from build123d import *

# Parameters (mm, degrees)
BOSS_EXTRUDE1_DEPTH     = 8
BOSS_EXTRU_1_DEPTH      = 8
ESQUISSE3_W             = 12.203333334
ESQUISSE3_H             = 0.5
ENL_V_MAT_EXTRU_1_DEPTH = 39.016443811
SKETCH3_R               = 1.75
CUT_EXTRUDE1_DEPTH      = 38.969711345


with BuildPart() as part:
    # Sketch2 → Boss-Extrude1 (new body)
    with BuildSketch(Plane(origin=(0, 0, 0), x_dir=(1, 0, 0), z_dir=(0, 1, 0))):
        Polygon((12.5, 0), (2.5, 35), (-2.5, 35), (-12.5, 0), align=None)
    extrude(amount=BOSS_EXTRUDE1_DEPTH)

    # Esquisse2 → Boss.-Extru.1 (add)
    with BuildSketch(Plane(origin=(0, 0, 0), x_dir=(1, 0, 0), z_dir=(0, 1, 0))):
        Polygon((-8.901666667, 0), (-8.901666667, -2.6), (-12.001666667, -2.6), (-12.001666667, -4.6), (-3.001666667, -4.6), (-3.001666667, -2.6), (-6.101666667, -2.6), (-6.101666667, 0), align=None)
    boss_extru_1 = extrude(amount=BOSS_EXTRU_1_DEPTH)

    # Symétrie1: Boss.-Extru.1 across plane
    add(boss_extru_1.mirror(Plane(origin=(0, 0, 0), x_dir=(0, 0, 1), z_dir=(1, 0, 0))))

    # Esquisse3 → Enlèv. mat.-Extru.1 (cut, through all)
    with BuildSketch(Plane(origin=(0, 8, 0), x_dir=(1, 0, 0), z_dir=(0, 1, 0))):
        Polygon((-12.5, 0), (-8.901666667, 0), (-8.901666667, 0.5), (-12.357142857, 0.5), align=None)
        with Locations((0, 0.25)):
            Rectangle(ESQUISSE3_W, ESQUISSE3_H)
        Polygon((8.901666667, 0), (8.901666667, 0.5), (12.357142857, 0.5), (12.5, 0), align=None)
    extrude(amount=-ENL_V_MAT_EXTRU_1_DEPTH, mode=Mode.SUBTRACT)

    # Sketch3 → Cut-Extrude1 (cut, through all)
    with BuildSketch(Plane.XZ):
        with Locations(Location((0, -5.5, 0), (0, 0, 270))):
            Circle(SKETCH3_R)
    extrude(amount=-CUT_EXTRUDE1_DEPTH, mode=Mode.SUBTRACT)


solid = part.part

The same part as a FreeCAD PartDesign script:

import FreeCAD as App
import Part
import Sketcher

V = App.Vector

doc = App.newDocument("Part")
body = doc.addObject("PartDesign::Body", "Body")

# Sketch on XZ plane
sketch1 = doc.addObject("Sketcher::SketchObject", "Sketch")
body.addObject(sketch1)
sketch1.AttachmentSupport = (doc.XZ_Plane, [""])
sketch1.MapMode = "FlatFace"
sketch1.addGeometry([
    Part.LineSegment(V(12, 0, 0), V(2, -35, 0)),
    Part.LineSegment(V(2, -35, 0), V(-2, -35, 0)),
    Part.LineSegment(V(-2, -35, 0), V(-12, 0, 0)),
    Part.LineSegment(V(-12, 0, 0), V(12, 0, 0)),
], False)
sketch1.addConstraint([
    Sketcher.Constraint("Coincident", 0, 2, 1, 1),
    Sketcher.Constraint("Coincident", 1, 2, 2, 1),
    Sketcher.Constraint("Coincident", 2, 2, 3, 1),
    Sketcher.Constraint("Coincident", 3, 2, 0, 1),
    Sketcher.Constraint("Horizontal", 1),
    Sketcher.Constraint("Horizontal", 3),
    Sketcher.Constraint("Symmetric", 2, 2, 3, 2, -1, 1),
    Sketcher.Constraint("Equal", 0, 2),
    Sketcher.Constraint("DistanceX", 1, 2, 1, 1, 5.0),
    Sketcher.Constraint("DistanceX", 3, 1, 3, 2, 25.0),
    Sketcher.Constraint("DistanceY", 0, 2, -1, 1, 35.0),
])
pad1 = doc.addObject("PartDesign::Pad", "Pad")
body.addObject(pad1)
pad1.Profile = sketch1
pad1.Length = 8
pad1.Reversed = True

# Sketch on XZ plane
sketch2 = doc.addObject("Sketcher::SketchObject", "Sketch001")
body.addObject(sketch2)
sketch2.AttachmentSupport = (doc.XZ_Plane, [""])
sketch2.MapMode = "FlatFace"
sketch2.addGeometry([
    Part.LineSegment(V(-8.9, 0, 0), V(-8.9, 2.6, 0)),  # 0
    Part.LineSegment(V(-8.9, 2.6, 0), V(-12, 2.6, 0)),  # 1
    Part.LineSegment(V(-12, 2.6, 0), V(-12, 4.6, 0)),  # 2
    Part.LineSegment(V(-12, 4.6, 0), V(-3, 4.6, 0)),  # 3
    Part.LineSegment(V(-3, 4.6, 0), V(-3, 2.6, 0)),  # 4
    Part.LineSegment(V(-3, 2.6, 0), V(-6.1, 2.6, 0)),  # 5
    Part.LineSegment(V(-6.1, 2.6, 0), V(-6.1, 0, 0)),  # 6
    Part.LineSegment(V(-6.1, 0, 0), V(-8.9, 0, 0)),  # 7
], False)
sketch2.addConstraint([
    Sketcher.Constraint("Coincident", 0, 2, 1, 1),
    Sketcher.Constraint("Coincident", 1, 2, 2, 1),
    Sketcher.Constraint("Coincident", 2, 2, 3, 1),
    Sketcher.Constraint("Coincident", 3, 2, 4, 1),
    Sketcher.Constraint("Coincident", 4, 2, 5, 1),
    Sketcher.Constraint("Coincident", 5, 2, 6, 1),
    Sketcher.Constraint("Coincident", 6, 2, 7, 1),
    Sketcher.Constraint("Coincident", 7, 2, 0, 1),
    Sketcher.Constraint("Vertical", 0),
    Sketcher.Constraint("Horizontal", 1),
    Sketcher.Constraint("Vertical", 2),
    Sketcher.Constraint("Horizontal", 3),
    Sketcher.Constraint("Vertical", 4),
    Sketcher.Constraint("Horizontal", 5),
    Sketcher.Constraint("Vertical", 6),
    Sketcher.Constraint("Horizontal", 7),
    Sketcher.Constraint("PointOnObject", 6, 2, -1),
    Sketcher.Constraint("Horizontal", 1, 2, 4, 2),
    Sketcher.Constraint("Equal", 1, 5),
    Sketcher.Constraint("DistanceX", 3, 1, 3, 2, 9.0),
    Sketcher.Constraint("DistanceY", 2, 1, 2, 2, 2.0),
    Sketcher.Constraint("DistanceX", 1, 2, 1, 1, 3.1),
    Sketcher.Constraint("DistanceY", 0, 1, 0, 2, 2.6),
    Sketcher.Constraint("DistanceX", 0, 2, -1, 1, 8.901667),
])
pad2 = doc.addObject("PartDesign::Pad", "Pad001")
body.addObject(pad2)
pad2.Profile = sketch2
pad2.Length = 8
pad2.Reversed = True
doc.recompute()

mirrored = doc.addObject("PartDesign::Mirrored", "Mirrored")
body.addObject(mirrored)
mirrored.Originals = [pad2]
mirrored.MirrorPlane = (doc.YZ_Plane, [""])
body.Tip = mirrored

# Sketch on XZ plane
sketch3 = doc.addObject("Sketcher::SketchObject", "Sketch002")
body.addObject(sketch3)
sketch3.AttachmentSupport = (doc.XZ_Plane, [""])
sketch3.MapMode = "FlatFace"
sketch3.AttachmentOffset = App.Placement(V(0, 0, -8), App.Rotation())
sketch3.addGeometry([
    Part.LineSegment(V(-12.5, 0, 0), V(-8.9, 0, 0)),  # 0
    Part.LineSegment(V(-8.9, 0, 0), V(-8.9, -0.5, 0)),  # 1
    Part.LineSegment(V(-8.9, -0.5, 0), V(-12.4, -0.5, 0)),  # 2
    Part.LineSegment(V(-12.4, -0.5, 0), V(-12.5, 0, 0)),  # 3
    Part.LineSegment(V(-6.1, -0.5, 0), V(-6.1, 0, 0)),  # 4
    Part.LineSegment(V(-6.1, 0, 0), V(6.1, 0, 0)),  # 5
    Part.LineSegment(V(6.1, 0, 0), V(6.1, -0.5, 0)),  # 6
    Part.LineSegment(V(6.1, -0.5, 0), V(-6.1, -0.5, 0)),  # 7
    Part.LineSegment(V(8.9, -0.5, 0), V(8.9, 0, 0)),  # 8
    Part.LineSegment(V(8.9, 0, 0), V(12.5, 0, 0)),  # 9
    Part.LineSegment(V(12.5, 0, 0), V(12.4, -0.5, 0)),  # 10
    Part.LineSegment(V(12.4, -0.5, 0), V(8.9, -0.5, 0)),  # 11
], False)
sketch3.addConstraint([
    Sketcher.Constraint("Coincident", 0, 2, 1, 1),
    Sketcher.Constraint("Coincident", 1, 2, 2, 1),
    Sketcher.Constraint("Coincident", 2, 2, 3, 1),
    Sketcher.Constraint("Coincident", 3, 2, 0, 1),
    Sketcher.Constraint("Coincident", 4, 2, 5, 1),
    Sketcher.Constraint("Coincident", 5, 2, 6, 1),
    Sketcher.Constraint("Coincident", 6, 2, 7, 1),
    Sketcher.Constraint("Coincident", 7, 2, 4, 1),
    Sketcher.Constraint("Coincident", 8, 2, 9, 1),
    Sketcher.Constraint("Coincident", 9, 2, 10, 1),
    Sketcher.Constraint("Coincident", 10, 2, 11, 1),
    Sketcher.Constraint("Coincident", 11, 2, 8, 1),
    Sketcher.Constraint("Horizontal", 0),
    Sketcher.Constraint("Vertical", 1),
    Sketcher.Constraint("Horizontal", 2),
    Sketcher.Constraint("Vertical", 4),
    Sketcher.Constraint("Horizontal", 5),
    Sketcher.Constraint("Vertical", 6),
    Sketcher.Constraint("Horizontal", 7),
    Sketcher.Constraint("Vertical", 8),
    Sketcher.Constraint("Horizontal", 9),
    Sketcher.Constraint("Horizontal", 11),
    Sketcher.Constraint("Symmetric", 4, 2, 5, 2, -1, 1),
    Sketcher.Constraint("Symmetric", 0, 2, 8, 2, -1, 1),
    Sketcher.Constraint("Symmetric", 3, 2, 9, 2, -2),
    Sketcher.Constraint("Symmetric", 2, 2, 10, 2, -2),
    Sketcher.Constraint("Horizontal", 2, 2, 6, 2),
    Sketcher.Constraint("DistanceY", 1, 2, 1, 1, 0.5),
    Sketcher.Constraint("DistanceX", 3, 2, -1, 1, 12.5),
    Sketcher.Constraint("DistanceX", 0, 2, 4, 2, 2.8),
    Sketcher.Constraint("DistanceX", 0, 1, 0, 2, 3.598333),
    Sketcher.Constraint("DistanceX", 2, 2, 2, 1, 3.455476),
])
pocket1 = doc.addObject("PartDesign::Pocket", "Pocket")
body.addObject(pocket1)
pocket1.Profile = sketch3
pocket1.Type = "ThroughAll"
pocket1.Reversed = True

# Sketch on XZ plane
sketch4 = doc.addObject("Sketcher::SketchObject", "Sketch003")
body.addObject(sketch4)
sketch4.AttachmentSupport = (doc.XZ_Plane, [""])
sketch4.MapMode = "FlatFace"
sketch4.addGeometry(Part.Circle(V(0, -5.5, 0), V(0, 0, 1), 1.8), False)
sketch4.addConstraint([
    Sketcher.Constraint("PointOnObject", 0, 3, -2),
    Sketcher.Constraint("Diameter", 0, 3.5),
    Sketcher.Constraint("DistanceY", 0, 3, -1, 1, 5.5),
])
pocket2 = doc.addObject("PartDesign::Pocket", "Pocket001")
body.addObject(pocket2)
pocket2.Profile = sketch4
pocket2.Type = "ThroughAll"

doc.recompute()
